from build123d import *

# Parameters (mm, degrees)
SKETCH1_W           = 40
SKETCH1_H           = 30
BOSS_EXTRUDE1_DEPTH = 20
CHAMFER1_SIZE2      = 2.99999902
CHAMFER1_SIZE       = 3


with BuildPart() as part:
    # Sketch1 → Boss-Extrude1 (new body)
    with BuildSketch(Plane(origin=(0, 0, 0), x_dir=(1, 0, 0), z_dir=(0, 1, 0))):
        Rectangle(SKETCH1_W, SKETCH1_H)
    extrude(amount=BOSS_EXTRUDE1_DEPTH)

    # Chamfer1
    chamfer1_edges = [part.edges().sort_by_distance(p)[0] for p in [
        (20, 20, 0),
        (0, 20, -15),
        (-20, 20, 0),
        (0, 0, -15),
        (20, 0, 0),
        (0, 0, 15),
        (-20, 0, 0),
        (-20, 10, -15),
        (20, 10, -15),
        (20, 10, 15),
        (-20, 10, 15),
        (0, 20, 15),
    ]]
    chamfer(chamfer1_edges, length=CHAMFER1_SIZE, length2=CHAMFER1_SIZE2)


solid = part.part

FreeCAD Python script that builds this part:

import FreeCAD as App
import Part
import Sketcher


def add_polygon(sketch, points):
    """Adds a closed chain of lines whose ends are joined by coincident constraints."""
    first, n = sketch.GeometryCount, len(points)
    for a, b in zip(points, points[1:] + points[:1]):
        sketch.addGeometry(Part.LineSegment(App.Vector(*a, 0), App.Vector(*b, 0)), False)
    for i in range(n):
        sketch.addConstraint(Sketcher.Constraint("Coincident", first + i, 2, first + (i + 1) % n, 1))

doc = App.newDocument("Part")
params = doc.addObject("Spreadsheet::Sheet", "Params")
for row, (alias, value) in enumerate([
    ("sketch1_width", "40 mm"),
    ("sketch1_height", "30 mm"),
    ("pad1_length", "20 mm"),
    ("chamfer_size", "3 mm"),
    ("chamfer_size2", "2.999999 mm"),
], start=1):
    params.set(f"A{row}", alias)
    params.set(f"B{row}", "=" + value)
    params.setAlias(f"B{row}", alias)

body = doc.addObject("PartDesign::Body", "Body")

# Sketch on XZ plane
sketch1 = body.newObject("Sketcher::SketchObject", "Sketch")
sketch1.AttachmentSupport = (doc.getObject("XZ_Plane"), [""])
sketch1.MapMode = "FlatFace"
add_polygon(sketch1, [(-20, -15), (-20, 15), (20, 15), (20, -15)])  # lines 0-3
sketch1.addConstraint([
    Sketcher.Constraint("Vertical", 0),
    Sketcher.Constraint("Horizontal", 1),
    Sketcher.Constraint("Vertical", 2),
    Sketcher.Constraint("Horizontal", 3),
    Sketcher.Constraint("Symmetric", 0, 2, 2, 2, -1, 1),
    Sketcher.Constraint("DistanceX", 1, 1, 1, 2, 40.0),
    Sketcher.Constraint("DistanceY", 0, 1, 0, 2, 30.0),
])
sketch1.setExpression("Constraints[9]", "Params.sketch1_width")
sketch1.setExpression("Constraints[10]", "Params.sketch1_height")
pad1 = body.newObject("PartDesign::Pad", "Pad")
pad1.Profile = sketch1
pad1.setExpression("Length", "Params.pad1_length")
pad1.Reversed = True
doc.recompute()

chamfer = body.newObject("PartDesign::Chamfer", "Chamfer")
chamfer.Base = (pad1, ["Edge1"])
chamfer.UseAllEdges = True
chamfer.ChamferType = "Two distances"
chamfer.setExpression("Size", "Params.chamfer_size")
chamfer.setExpression("Size2", "Params.chamfer_size2")

doc.recompute()
